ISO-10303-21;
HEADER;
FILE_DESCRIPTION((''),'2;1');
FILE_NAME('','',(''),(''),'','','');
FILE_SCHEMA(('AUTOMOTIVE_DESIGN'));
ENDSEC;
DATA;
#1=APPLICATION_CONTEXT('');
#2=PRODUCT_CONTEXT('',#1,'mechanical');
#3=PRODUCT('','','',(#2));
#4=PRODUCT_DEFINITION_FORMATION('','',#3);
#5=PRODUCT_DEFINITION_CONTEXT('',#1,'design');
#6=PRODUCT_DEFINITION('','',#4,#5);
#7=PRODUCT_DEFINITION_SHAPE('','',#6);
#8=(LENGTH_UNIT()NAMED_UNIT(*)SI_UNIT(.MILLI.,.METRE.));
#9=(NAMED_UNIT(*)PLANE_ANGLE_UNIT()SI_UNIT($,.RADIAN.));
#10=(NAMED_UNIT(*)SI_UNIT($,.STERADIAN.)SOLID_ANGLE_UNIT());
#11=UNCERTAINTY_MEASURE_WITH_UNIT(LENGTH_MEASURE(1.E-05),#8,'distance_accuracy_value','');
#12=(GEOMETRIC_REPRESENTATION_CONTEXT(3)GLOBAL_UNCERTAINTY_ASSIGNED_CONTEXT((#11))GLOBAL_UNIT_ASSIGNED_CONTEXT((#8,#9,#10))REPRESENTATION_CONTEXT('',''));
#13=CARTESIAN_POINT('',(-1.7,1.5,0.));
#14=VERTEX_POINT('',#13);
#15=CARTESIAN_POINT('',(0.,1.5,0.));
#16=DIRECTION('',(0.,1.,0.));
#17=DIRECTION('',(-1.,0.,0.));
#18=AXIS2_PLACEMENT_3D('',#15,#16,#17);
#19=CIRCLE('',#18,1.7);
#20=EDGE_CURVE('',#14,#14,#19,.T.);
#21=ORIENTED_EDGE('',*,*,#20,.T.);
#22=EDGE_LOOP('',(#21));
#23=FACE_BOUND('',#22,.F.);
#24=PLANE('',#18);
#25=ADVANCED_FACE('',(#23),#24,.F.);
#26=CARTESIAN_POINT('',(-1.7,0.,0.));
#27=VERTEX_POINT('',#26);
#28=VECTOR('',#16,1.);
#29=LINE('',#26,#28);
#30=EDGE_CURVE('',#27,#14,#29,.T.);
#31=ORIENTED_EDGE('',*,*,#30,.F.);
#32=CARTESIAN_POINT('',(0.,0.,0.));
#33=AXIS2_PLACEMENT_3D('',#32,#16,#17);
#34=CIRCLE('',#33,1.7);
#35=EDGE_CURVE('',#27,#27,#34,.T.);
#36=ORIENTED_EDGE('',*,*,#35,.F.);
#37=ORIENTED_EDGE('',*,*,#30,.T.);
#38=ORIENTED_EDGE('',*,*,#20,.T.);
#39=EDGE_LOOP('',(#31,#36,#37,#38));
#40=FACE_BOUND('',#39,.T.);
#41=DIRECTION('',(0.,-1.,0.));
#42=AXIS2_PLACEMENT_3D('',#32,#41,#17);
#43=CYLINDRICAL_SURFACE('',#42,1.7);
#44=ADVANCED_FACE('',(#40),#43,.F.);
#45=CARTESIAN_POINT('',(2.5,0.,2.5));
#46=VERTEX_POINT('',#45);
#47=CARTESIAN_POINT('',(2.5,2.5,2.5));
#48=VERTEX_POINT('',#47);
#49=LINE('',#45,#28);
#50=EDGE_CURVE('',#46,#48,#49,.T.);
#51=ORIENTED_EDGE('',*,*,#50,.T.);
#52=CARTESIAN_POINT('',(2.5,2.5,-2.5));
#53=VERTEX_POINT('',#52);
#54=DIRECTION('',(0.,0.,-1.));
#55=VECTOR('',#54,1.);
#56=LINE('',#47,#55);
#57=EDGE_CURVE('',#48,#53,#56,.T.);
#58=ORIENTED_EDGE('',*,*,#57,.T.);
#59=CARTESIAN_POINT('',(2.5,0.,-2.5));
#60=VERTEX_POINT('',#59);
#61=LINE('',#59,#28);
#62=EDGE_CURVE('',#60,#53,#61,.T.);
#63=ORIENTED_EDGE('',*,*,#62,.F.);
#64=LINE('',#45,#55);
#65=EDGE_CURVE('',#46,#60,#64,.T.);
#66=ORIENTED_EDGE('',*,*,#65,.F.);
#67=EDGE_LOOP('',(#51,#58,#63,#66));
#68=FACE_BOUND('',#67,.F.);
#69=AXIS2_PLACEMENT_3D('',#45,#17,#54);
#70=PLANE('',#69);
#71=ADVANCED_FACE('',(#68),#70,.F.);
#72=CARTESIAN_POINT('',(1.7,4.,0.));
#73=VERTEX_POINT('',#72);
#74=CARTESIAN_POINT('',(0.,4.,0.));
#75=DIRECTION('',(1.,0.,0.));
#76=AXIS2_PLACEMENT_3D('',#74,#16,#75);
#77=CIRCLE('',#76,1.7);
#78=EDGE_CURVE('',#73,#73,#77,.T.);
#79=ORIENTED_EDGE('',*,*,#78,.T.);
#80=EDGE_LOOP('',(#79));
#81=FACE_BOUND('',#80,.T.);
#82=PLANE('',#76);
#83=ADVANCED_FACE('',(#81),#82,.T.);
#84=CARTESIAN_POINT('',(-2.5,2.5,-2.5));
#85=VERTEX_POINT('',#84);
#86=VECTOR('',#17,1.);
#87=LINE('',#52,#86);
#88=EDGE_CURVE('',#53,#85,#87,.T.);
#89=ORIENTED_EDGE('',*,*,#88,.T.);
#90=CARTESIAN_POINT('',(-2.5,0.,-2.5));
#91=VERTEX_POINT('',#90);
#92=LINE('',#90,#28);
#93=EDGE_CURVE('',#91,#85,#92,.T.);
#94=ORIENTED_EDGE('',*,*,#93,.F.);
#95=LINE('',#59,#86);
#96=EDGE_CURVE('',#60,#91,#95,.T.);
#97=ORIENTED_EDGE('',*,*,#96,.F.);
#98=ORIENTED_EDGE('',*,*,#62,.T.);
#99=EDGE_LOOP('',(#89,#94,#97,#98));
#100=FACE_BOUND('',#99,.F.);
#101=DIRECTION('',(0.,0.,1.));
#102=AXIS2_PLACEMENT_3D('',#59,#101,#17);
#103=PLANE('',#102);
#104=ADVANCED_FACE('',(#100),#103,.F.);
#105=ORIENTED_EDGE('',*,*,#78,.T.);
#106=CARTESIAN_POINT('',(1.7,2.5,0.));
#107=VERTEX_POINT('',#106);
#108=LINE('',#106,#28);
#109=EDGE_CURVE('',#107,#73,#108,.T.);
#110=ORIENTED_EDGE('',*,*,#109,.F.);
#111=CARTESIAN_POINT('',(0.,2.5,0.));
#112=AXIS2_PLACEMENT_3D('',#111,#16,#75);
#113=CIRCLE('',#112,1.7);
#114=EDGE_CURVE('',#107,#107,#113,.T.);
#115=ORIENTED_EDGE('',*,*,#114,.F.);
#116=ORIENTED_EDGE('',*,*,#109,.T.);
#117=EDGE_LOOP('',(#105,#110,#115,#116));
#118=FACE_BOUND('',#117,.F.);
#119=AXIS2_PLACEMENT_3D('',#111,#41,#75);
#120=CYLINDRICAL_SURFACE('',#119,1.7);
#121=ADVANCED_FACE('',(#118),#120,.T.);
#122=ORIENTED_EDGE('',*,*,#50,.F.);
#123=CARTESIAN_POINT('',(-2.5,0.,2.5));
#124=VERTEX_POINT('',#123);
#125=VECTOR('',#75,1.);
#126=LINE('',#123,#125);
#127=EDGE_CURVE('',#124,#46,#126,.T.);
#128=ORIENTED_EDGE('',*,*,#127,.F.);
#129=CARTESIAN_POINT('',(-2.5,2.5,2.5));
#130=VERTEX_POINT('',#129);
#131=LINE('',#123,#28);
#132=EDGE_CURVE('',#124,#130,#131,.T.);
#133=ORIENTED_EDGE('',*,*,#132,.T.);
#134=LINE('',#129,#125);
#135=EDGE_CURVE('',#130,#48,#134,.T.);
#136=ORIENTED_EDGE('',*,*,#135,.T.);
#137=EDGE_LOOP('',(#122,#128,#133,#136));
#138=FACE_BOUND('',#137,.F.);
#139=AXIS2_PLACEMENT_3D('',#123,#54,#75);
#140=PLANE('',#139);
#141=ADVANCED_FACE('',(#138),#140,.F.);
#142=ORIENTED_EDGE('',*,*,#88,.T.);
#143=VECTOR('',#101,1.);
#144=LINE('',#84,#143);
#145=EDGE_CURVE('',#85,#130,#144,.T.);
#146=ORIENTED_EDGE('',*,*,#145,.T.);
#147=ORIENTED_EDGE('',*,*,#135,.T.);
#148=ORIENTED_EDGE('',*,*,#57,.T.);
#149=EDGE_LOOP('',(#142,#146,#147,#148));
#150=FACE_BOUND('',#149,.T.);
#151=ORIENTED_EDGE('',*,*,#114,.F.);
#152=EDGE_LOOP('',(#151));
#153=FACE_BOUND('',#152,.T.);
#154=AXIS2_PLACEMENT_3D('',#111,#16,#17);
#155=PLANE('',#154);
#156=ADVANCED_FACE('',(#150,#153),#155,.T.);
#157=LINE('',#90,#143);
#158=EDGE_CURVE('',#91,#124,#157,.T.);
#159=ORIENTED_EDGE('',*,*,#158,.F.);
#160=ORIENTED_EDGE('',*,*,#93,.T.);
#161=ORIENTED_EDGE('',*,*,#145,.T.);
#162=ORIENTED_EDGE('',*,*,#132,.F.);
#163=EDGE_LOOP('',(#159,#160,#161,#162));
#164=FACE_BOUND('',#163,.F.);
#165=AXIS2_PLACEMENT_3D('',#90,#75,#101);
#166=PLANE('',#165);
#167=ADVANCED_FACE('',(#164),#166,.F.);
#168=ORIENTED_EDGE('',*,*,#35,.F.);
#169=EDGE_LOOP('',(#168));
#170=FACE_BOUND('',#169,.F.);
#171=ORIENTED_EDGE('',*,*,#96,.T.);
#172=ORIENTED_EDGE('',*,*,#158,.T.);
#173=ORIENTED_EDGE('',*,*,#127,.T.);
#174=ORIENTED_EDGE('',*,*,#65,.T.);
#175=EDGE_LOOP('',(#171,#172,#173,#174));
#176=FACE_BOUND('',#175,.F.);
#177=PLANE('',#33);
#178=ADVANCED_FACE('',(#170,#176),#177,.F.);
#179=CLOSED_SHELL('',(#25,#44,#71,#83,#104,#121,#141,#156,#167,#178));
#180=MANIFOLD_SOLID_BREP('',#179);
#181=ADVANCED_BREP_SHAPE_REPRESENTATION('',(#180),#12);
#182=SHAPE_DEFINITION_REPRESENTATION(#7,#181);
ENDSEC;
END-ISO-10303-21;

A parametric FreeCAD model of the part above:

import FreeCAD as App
import Part
import Sketcher

V = App.Vector
Q = App.Units.Quantity

doc = App.newDocument("Part")
body = doc.addObject("PartDesign::Body", "Body")

sketch1 = doc.addObject("Sketcher::SketchObject", "Sketch")
body.addObject(sketch1)
sketch1.AttachmentSupport = (doc.XZ_Plane, [""])
sketch1.MapMode = "FlatFace"
sketch1.addGeometry(Part.LineSegment(V(-2, -2, 0), V(-2, 2, 0)), False)
sketch1.addGeometry(Part.LineSegment(V(-2, 2, 0), V(2, 2, 0)), False)
sketch1.addGeometry(Part.LineSegment(V(2, 2, 0), V(2, -2, 0)), False)
sketch1.addGeometry(Part.LineSegment(V(2, -2, 0), V(-2, -2, 0)), False)
sketch1.addConstraint(Sketcher.Constraint("Coincident", 0, 2, 1, 1))
sketch1.addConstraint(Sketcher.Constraint("Coincident", 1, 2, 2, 1))
sketch1.addConstraint(Sketcher.Constraint("Coincident", 2, 2, 3, 1))
sketch1.addConstraint(Sketcher.Constraint("Coincident", 3, 2, 0, 1))
sketch1.addConstraint(Sketcher.Constraint("Vertical", 0))
sketch1.addConstraint(Sketcher.Constraint("Horizontal", 1))
sketch1.addConstraint(Sketcher.Constraint("Vertical", 2))
sketch1.addConstraint(Sketcher.Constraint("Horizontal", 3))
sketch1.addConstraint(Sketcher.Constraint("Symmetric", 0, 2, 2, 2, -1, 1))
sketch1.addConstraint(Sketcher.Constraint("Equal", 3, 0))
sketch1.addConstraint(Sketcher.Constraint("DistanceX", 1, 1, 1, 2, Q("5 mm")))
pad1 = doc.addObject("PartDesign::Pad", "Pad")
body.addObject(pad1)
pad1.Profile = sketch1
pad1.Length = 2.5
pad1.Reversed = True

sketch2 = doc.addObject("Sketcher::SketchObject", "Sketch001")
body.addObject(sketch2)
sketch2.AttachmentSupport = (doc.XZ_Plane, [""])
sketch2.MapMode = "FlatFace"
sketch2.addGeometry(Part.Circle(V(0, 0, 0), V(0, 0, 1), 1.7), False)
sketch2.addConstraint(Sketcher.Constraint("Coincident", 0, 3, -1, 1))
sketch2.addConstraint(Sketcher.Constraint("Diameter", 0, Q("3.4 mm")))
pocket1 = doc.addObject("PartDesign::Pocket", "Pocket")
body.addObject(pocket1)
pocket1.Profile = sketch2
pocket1.Length = 1.5

sketch3 = doc.addObject("Sketcher::SketchObject", "Sketch002")
body.addObject(sketch3)
sketch3.AttachmentSupport = (doc.XZ_Plane, [""])
sketch3.MapMode = "FlatFace"
sketch3.AttachmentOffset = App.Placement(V(0, 0, -2.5), App.Rotation())
sketch3.addGeometry(Part.Circle(V(0, 0, 0), V(0, 0, 1), 1.7), False)
sketch3.addConstraint(Sketcher.Constraint("Coincident", 0, 3, -1, 1))
sketch3.addConstraint(Sketcher.Constraint("Diameter", 0, Q("3.4 mm")))
pad2 = doc.addObject("PartDesign::Pad", "Pad001")
body.addObject(pad2)
pad2.Profile = sketch3
pad2.Length = 1.5
pad2.Reversed = True

doc.recompute()
